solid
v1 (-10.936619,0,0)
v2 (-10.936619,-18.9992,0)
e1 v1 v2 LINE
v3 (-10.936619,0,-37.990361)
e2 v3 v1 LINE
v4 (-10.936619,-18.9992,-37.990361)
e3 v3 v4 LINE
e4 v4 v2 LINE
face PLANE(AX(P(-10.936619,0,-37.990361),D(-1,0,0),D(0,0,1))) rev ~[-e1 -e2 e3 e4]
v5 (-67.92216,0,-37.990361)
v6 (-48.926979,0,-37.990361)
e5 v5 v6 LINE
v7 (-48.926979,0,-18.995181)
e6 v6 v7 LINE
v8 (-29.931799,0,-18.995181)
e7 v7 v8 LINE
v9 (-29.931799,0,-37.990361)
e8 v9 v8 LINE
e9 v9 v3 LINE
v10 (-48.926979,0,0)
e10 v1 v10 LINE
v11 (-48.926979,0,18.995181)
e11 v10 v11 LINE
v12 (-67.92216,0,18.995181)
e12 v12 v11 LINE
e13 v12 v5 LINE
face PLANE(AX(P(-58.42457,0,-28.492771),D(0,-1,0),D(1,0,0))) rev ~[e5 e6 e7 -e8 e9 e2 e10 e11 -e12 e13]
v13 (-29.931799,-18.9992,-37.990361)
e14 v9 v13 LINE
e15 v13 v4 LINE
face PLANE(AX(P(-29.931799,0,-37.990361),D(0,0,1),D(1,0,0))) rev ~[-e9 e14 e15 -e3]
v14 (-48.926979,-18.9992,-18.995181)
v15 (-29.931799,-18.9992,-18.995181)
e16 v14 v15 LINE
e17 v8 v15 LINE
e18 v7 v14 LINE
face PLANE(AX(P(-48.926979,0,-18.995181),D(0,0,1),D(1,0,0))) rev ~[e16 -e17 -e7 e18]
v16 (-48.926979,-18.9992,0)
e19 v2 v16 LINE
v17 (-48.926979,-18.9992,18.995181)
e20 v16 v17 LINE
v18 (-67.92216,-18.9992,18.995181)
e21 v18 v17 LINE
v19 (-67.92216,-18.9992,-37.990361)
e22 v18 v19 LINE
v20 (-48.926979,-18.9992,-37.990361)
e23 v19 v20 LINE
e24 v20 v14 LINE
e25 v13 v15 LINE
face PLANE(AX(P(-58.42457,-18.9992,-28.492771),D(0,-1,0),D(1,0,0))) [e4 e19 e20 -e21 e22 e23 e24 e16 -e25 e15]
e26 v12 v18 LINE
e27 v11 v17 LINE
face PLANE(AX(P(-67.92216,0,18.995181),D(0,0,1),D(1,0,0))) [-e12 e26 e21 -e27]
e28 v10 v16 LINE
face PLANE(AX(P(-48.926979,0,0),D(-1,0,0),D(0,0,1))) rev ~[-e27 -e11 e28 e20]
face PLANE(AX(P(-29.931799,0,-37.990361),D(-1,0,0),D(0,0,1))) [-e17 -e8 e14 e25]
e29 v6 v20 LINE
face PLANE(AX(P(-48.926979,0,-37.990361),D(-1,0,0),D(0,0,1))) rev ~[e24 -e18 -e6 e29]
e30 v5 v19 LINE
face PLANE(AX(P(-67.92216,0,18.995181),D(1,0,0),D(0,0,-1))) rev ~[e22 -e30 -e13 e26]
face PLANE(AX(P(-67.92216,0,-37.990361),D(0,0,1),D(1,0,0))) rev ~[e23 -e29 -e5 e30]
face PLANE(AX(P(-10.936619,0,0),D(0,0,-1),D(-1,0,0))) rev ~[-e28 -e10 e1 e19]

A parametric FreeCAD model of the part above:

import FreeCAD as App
import Part
import Sketcher
from FreeCAD import Vector
Q = App.Units.Quantity

doc = App.newDocument("Part")
params = doc.addObject("Spreadsheet::Sheet", "Params")
for row, (alias, value) in enumerate([
    ("pad1_length", "0.748 in"),
], start=1):
    params.set(f"A{row}", alias)
    params.set(f"B{row}", "=" + value)
    params.setAlias(f"B{row}", alias)

body = doc.addObject("PartDesign::Body", "Body")

sketch1 = body.newObject("Sketcher::SketchObject", "Sketch")
sketch1.AttachmentSupport = (doc.getObject("XZ_Plane"), [""])
sketch1.MapMode = "FlatFace"
sketch1.addGeometry([
    Part.LineSegment(Vector(-68, -38, 0), Vector(-49, -38, 0)),
    Part.LineSegment(Vector(-49, -38, 0), Vector(-49, -19, 0)),
    Part.LineSegment(Vector(-49, -19, 0), Vector(-30, -19, 0)),
    Part.LineSegment(Vector(-30, -19, 0), Vector(-30, -38, 0)),
    Part.LineSegment(Vector(-30, -38, 0), Vector(-11, -38, 0)),
    Part.LineSegment(Vector(-11, -38, 0), Vector(-11, 0, 0)),
    Part.LineSegment(Vector(-11, 0, 0), Vector(-49, 0, 0)),
    Part.LineSegment(Vector(-49, 0, 0), Vector(-49, 19, 0)),
    Part.LineSegment(Vector(-49, 19, 0), Vector(-68, 19, 0)),
    Part.LineSegment(Vector(-68, 19, 0), Vector(-68, -38, 0)),
], False)
sketch1.addConstraint([
    Sketcher.Constraint("Coincident", 0, 2, 1, 1),
    Sketcher.Constraint("Coincident", 1, 2, 2, 1),
    Sketcher.Constraint("Coincident", 2, 2, 3, 1),
    Sketcher.Constraint("Coincident", 3, 2, 4, 1),
    Sketcher.Constraint("Coincident", 4, 2, 5, 1),
    Sketcher.Constraint("Coincident", 5, 2, 6, 1),
    Sketcher.Constraint("Coincident", 6, 2, 7, 1),
    Sketcher.Constraint("Coincident", 7, 2, 8, 1),
    Sketcher.Constraint("Coincident", 8, 2, 9, 1),
    Sketcher.Constraint("Coincident", 9, 2, 0, 1),
    Sketcher.Constraint("Horizontal", 0),
    Sketcher.Constraint("Vertical", 1),
    Sketcher.Constraint("Horizontal", 2),
    Sketcher.Constraint("Vertical", 3),
    Sketcher.Constraint("Horizontal", 4),
    Sketcher.Constraint("Vertical", 5),
    Sketcher.Constraint("Horizontal", 6),
    Sketcher.Constraint("Vertical", 7),
    Sketcher.Constraint("Horizontal", 8),
    Sketcher.Constraint("Vertical", 9),
    Sketcher.Constraint("Symmetric", 1, 2, 7, 2, -1),
    Sketcher.Constraint("PointOnObject", 5, 2, -1),
    Sketcher.Constraint("Horizontal", 0, 2, 3, 2),
    Sketcher.Constraint("Equal", 0, 2),
    Sketcher.Constraint("Equal", 2, 4),
    Sketcher.Constraint("Equal", 8, 1),
    Sketcher.Constraint("Equal", 6, 5),
    Sketcher.Constraint("DistanceX", 0, 1, 0, 2, Q("18.995181 mm")),
    Sketcher.Constraint("DistanceX", 2, 2, -1, 1, Q("29.931799 mm")),
])
pad1 = body.newObject("PartDesign::Pad", "Pad")
pad1.Profile = sketch1
pad1.setExpression("Length", "Params.pad1_length")

doc.recompute()
